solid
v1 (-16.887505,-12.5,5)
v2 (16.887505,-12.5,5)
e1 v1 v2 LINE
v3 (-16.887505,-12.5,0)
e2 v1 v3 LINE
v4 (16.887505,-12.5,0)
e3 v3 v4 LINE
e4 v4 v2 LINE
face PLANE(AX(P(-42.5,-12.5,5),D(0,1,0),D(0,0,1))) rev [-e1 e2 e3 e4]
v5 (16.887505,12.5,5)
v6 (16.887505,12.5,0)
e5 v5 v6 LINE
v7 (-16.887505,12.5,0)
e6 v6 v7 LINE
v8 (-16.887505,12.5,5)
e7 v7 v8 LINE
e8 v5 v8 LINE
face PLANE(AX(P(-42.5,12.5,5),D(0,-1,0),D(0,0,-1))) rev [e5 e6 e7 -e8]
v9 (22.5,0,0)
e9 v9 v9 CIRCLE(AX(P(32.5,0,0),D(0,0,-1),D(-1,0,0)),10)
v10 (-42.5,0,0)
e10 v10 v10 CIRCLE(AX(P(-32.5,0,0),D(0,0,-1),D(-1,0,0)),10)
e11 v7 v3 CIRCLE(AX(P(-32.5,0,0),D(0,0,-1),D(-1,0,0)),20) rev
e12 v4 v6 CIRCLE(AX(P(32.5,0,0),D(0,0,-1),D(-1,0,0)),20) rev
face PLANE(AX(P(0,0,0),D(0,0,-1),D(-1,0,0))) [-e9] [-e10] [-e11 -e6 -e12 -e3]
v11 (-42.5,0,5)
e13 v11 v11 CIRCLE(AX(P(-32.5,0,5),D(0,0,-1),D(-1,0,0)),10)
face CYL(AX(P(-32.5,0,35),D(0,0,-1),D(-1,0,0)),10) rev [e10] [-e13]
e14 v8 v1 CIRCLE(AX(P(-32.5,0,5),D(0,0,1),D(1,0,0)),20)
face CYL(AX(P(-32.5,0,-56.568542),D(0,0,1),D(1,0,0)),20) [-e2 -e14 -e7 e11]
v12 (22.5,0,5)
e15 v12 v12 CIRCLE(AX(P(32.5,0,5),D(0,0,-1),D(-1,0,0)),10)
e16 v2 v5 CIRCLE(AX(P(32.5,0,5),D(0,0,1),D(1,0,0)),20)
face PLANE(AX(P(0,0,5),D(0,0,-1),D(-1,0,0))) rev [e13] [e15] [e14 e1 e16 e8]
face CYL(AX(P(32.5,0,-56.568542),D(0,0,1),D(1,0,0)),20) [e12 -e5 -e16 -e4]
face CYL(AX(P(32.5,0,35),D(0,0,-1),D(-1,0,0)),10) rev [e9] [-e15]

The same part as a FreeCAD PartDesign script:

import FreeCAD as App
import Part
import Sketcher
from FreeCAD import Vector

doc = App.newDocument("Part")
body = doc.addObject("PartDesign::Body", "Body")

sketch1 = body.newObject("Sketcher::SketchObject", "Sketch")
sketch1.AttachmentSupport = (doc.getObject("XY_Plane"), [""])
sketch1.MapMode = "FlatFace"
sketch1.addGeometry([
    Part.LineSegment(Vector(-42, 12, 0), Vector(-42, -12, 0)),
    Part.LineSegment(Vector(-42, -12, 0), Vector(42, -12, 0)),
    Part.LineSegment(Vector(42, -12, 0), Vector(42, 12, 0)),
    Part.LineSegment(Vector(42, 12, 0), Vector(-42, 12, 0)),
], False)
sketch1.addConstraint([
    Sketcher.Constraint("Coincident", 0, 2, 1, 1),
    Sketcher.Constraint("Coincident", 1, 2, 2, 1),
    Sketcher.Constraint("Coincident", 2, 2, 3, 1),
    Sketcher.Constraint("Coincident", 3, 2, 0, 1),
    Sketcher.Constraint("Vertical", 0),
    Sketcher.Constraint("Horizontal", 1),
    Sketcher.Constraint("Vertical", 2),
    Sketcher.Constraint("Horizontal", 3),
    Sketcher.Constraint("Symmetric", 0, 2, 2, 2, -1, 1),
    Sketcher.Constraint("DistanceX", 1, 1, 1, 2, 85.0),
    Sketcher.Constraint("DistanceY", 0, 2, 0, 1, 25.0),
])
pad1 = body.newObject("PartDesign::Pad", "Pad")
pad1.Profile = sketch1
pad1.Length = 5

sketch2 = body.newObject("Sketcher::SketchObject", "Sketch001")
sketch2.AttachmentSupport = (doc.getObject("XY_Plane"), [""])
sketch2.MapMode = "FlatFace"
sketch2.AttachmentOffset = App.Placement(Vector(0, 0, 5), App.Rotation())
sketch2.addGeometry([
    Part.Circle(Vector(32, 0, 0), Vector(0, 0, 1), 20),
    Part.Circle(Vector(-32, 0, 0), Vector(0, 0, 1), 20),
], False)
sketch2.addConstraint([
    Sketcher.Constraint("Equal", 0, 1),
    Sketcher.Constraint("Symmetric", 0, 3, 1, 3, -1, 1),
    Sketcher.Constraint("PointOnObject", 0, 3, -1),
    Sketcher.Constraint("Diameter", 0, 40.0),
    Sketcher.Constraint("DistanceX", 1, 3, 0, 3, 65.0),
])
pad2 = body.newObject("PartDesign::Pad", "Pad001")
pad2.Profile = sketch2
pad2.Length = 5
pad2.Reversed = True

sketch3 = body.newObject("Sketcher::SketchObject", "Sketch002")
sketch3.AttachmentSupport = (doc.getObject("XY_Plane"), [""])
sketch3.MapMode = "FlatFace"
sketch3.addGeometry([
    Part.Circle(Vector(32, 0, 0), Vector(0, 0, 1), 10),
    Part.Circle(Vector(-32, 0, 0), Vector(0, 0, 1), 10),
], False)
sketch3.addConstraint([
    Sketcher.Constraint("Equal", 0, 1),
    Sketcher.Constraint("Symmetric", 0, 3, 1, 3, -1, 1),
    Sketcher.Constraint("PointOnObject", 0, 3, -1),
    Sketcher.Constraint("Diameter", 0, 20.0),
    Sketcher.Constraint("DistanceX", 1, 3, 0, 3, 65.0),
])
pocket1 = body.newObject("PartDesign::Pocket", "Pocket")
pocket1.Profile = sketch3
pocket1.Length = 35
pocket1.Reversed = True

doc.recompute()
